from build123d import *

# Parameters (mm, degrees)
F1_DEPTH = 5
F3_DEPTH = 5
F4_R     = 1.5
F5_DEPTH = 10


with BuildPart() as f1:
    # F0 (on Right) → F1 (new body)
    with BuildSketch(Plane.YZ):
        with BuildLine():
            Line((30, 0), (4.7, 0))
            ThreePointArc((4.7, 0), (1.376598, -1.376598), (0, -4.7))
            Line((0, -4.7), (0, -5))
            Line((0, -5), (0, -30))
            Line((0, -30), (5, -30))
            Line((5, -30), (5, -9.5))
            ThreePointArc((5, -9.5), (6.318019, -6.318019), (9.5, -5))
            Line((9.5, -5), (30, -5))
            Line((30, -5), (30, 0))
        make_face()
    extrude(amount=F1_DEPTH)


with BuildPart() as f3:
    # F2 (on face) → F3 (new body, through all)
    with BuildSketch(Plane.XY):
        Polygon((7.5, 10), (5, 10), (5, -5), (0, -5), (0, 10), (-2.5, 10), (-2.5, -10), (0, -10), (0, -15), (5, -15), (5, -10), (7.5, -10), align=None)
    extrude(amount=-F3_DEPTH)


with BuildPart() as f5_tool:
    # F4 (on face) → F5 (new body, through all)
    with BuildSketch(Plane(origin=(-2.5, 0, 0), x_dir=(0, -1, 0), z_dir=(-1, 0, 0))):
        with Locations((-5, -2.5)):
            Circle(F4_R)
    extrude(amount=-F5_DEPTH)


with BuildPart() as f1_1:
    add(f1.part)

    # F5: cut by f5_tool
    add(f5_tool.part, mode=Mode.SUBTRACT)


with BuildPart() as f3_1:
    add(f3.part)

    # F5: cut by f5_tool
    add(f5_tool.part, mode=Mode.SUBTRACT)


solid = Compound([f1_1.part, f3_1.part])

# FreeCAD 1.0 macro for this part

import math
import FreeCAD as App
import Part
import Sketcher
from FreeCAD import Vector
Q = App.Units.Quantity


def add_polygon(sketch, points):
    """Adds a closed chain of lines whose ends are joined by coincident constraints."""
    first, n = sketch.GeometryCount, len(points)
    for a, b in zip(points, points[1:] + points[:1]):
        sketch.addGeometry(Part.LineSegment(App.Vector(*a, 0), App.Vector(*b, 0)), False)
    for i in range(n):
        sketch.addConstraint(Sketcher.Constraint("Coincident", first + i, 2, first + (i + 1) % n, 1))

doc = App.newDocument("Part")
body = doc.addObject("PartDesign::Body", "Body")

# Sketch on YZ plane
sketch1 = doc.addObject("Sketcher::SketchObject", "Sketch")
body.addObject(sketch1)
sketch1.AttachmentSupport = (doc.YZ_Plane, [""])
sketch1.MapMode = "FlatFace"
sketch1.addGeometry([
    Part.LineSegment(Vector(30, 0, 0), Vector(4.7, 0, 0)),  # 0
    Part.ArcOfCircle(Part.Circle(Vector(4.7, -4.7, 0), Vector(0, 0, 1), 4.7), math.radians(89.999995), math.radians(180.000005)),  # 1
    Part.LineSegment(Vector(0, -4.7, 0), Vector(0, -30, 0)),  # 2
    Part.LineSegment(Vector(0, -30, 0), Vector(5, -30, 0)),  # 3
    Part.LineSegment(Vector(5, -30, 0), Vector(5, -9.5, 0)),  # 4
    Part.ArcOfCircle(Part.Circle(Vector(9.499998, -9.499998, 0), Vector(0, 0, 1), 4.499998), math.radians(89.999979), math.radians(180.000021)),  # 5
    Part.LineSegment(Vector(9.5, -5, 0), Vector(30, -5, 0)),  # 6
    Part.LineSegment(Vector(30, -5, 0), Vector(30, 0, 0)),  # 7
], False)
sketch1.addConstraint([
    Sketcher.Constraint("Tangent", 0, 2, 1, 1),
    Sketcher.Constraint("Tangent", 1, 2, 2, 1),
    Sketcher.Constraint("Coincident", 2, 2, 3, 1),
    Sketcher.Constraint("Coincident", 3, 2, 4, 1),
    Sketcher.Constraint("Tangent", 4, 2, 5, 2),
    Sketcher.Constraint("Tangent", 5, 1, 6, 1),
    Sketcher.Constraint("Coincident", 6, 2, 7, 1),
    Sketcher.Constraint("Coincident", 7, 2, 0, 1),
    Sketcher.Constraint("Horizontal", 0),
    Sketcher.Constraint("Vertical", 2),
    Sketcher.Constraint("Horizontal", 3),
    Sketcher.Constraint("Vertical", 4),
    Sketcher.Constraint("Horizontal", 6),
    Sketcher.Constraint("Vertical", 7),
    Sketcher.Constraint("PointOnObject", 0, 2, -1),
    Sketcher.Constraint("PointOnObject", 1, 2, -2),
    Sketcher.Constraint("Equal", 0, 2),
    Sketcher.Constraint("Equal", 6, 4),
    Sketcher.Constraint("Radius", 1, Q("4.7 mm")),
    Sketcher.Constraint("Radius", 5, Q("4.499998 mm")),
    Sketcher.Constraint("DistanceX", 3, 1, 3, 2, Q("5 mm")),
    Sketcher.Constraint("DistanceX", 0, 2, 0, 1, Q("25.3 mm")),
])
pad1 = doc.addObject("PartDesign::Pad", "Pad")
body.addObject(pad1)
pad1.Profile = sketch1
pad1.Length = 5
body2 = doc.addObject("PartDesign::Body", "Body001")

# Sketch on XY plane
sketch2 = doc.addObject("Sketcher::SketchObject", "Sketch001")
body2.addObject(sketch2)
sketch2.AttachmentSupport = (doc.getObject("XY_Plane001"), [""])
sketch2.MapMode = "FlatFace"
add_polygon(sketch2, [(7.5, 10), (5, 10), (5, -5), (0, -5), (0, 10), (-2.5, 10), (-2.5, -10), (0, -10), (0, -15), (5, -15), (5, -10), (7.5, -10)])  # lines 0-11
sketch2.addConstraint([
    Sketcher.Constraint("Horizontal", 0),
    Sketcher.Constraint("Vertical", 1),
    Sketcher.Constraint("Horizontal", 2),
    Sketcher.Constraint("Vertical", 3),
    Sketcher.Constraint("Horizontal", 4),
    Sketcher.Constraint("Vertical", 5),
    Sketcher.Constraint("Horizontal", 6),
    Sketcher.Constraint("Vertical", 7),
    Sketcher.Constraint("Horizontal", 8),
    Sketcher.Constraint("Vertical", 9),
    Sketcher.Constraint("Horizontal", 10),
    Sketcher.Constraint("Vertical", 11),
    Sketcher.Constraint("Symmetric", 3, 2, 6, 2, -1, 1),
    Sketcher.Constraint("Symmetric", 0, 2, 9, 2, -1),
    Sketcher.Constraint("PointOnObject", 2, 2, -2),
    Sketcher.Constraint("Horizontal", 0, 2, 3, 2),
    Sketcher.Constraint("Equal", 0, 4),
    Sketcher.Constraint("Equal", 8, 7),
    Sketcher.Constraint("DistanceX", 2, 2, 2, 1, Q("5 mm")),
    Sketcher.Constraint("DistanceY", 1, 2, 1, 1, Q("15 mm")),
    Sketcher.Constraint("DistanceY", 5, 2, 5, 1, Q("20 mm")),
    Sketcher.Constraint("DistanceX", 0, 2, 0, 1, Q("2.5 mm")),
])
pad2 = doc.addObject("PartDesign::Pad", "Pad001")
body2.addObject(pad2)
pad2.Profile = sketch2
pad2.Length = 5
pad2.Reversed = True
body3 = doc.addObject("PartDesign::Body", "Body002")

# Sketch on YZ plane
sketch3 = doc.addObject("Sketcher::SketchObject", "Sketch002")
body3.addObject(sketch3)
sketch3.AttachmentSupport = (doc.getObject("YZ_Plane002"), [""])
sketch3.MapMode = "FlatFace"
sketch3.AttachmentOffset = App.Placement(Vector(0, 0, -2.5), App.Rotation())
sketch3.addGeometry(Part.Circle(Vector(5, -2.5, 0), Vector(0, 0, 1), 1.5), False)
sketch3.addConstraint([
    Sketcher.Constraint("Diameter", 0, Q("3 mm")),
    Sketcher.Constraint("DistanceX", -1, 1, 0, 3, Q("5 mm")),
    Sketcher.Constraint("DistanceY", 0, 3, -1, 1, Q("2.5 mm")),
])
pad3 = doc.addObject("PartDesign::Pad", "Pad002")
body3.addObject(pad3)
pad3.Profile = sketch3
pad3.Length = 10
doc.recompute()

body4 = doc.addObject("PartDesign::Body", "Body003")
body4.BaseFeature = body3
boolean = doc.addObject("PartDesign::Boolean", "Boolean")
body.addObject(boolean)
boolean.Type = "Cut"
boolean.addObjects([body4])
doc.recompute()

boolean2 = doc.addObject("PartDesign::Boolean", "Boolean001")
body2.addObject(boolean2)
boolean2.Type = "Cut"
boolean2.addObjects([body3])

doc.recompute()
